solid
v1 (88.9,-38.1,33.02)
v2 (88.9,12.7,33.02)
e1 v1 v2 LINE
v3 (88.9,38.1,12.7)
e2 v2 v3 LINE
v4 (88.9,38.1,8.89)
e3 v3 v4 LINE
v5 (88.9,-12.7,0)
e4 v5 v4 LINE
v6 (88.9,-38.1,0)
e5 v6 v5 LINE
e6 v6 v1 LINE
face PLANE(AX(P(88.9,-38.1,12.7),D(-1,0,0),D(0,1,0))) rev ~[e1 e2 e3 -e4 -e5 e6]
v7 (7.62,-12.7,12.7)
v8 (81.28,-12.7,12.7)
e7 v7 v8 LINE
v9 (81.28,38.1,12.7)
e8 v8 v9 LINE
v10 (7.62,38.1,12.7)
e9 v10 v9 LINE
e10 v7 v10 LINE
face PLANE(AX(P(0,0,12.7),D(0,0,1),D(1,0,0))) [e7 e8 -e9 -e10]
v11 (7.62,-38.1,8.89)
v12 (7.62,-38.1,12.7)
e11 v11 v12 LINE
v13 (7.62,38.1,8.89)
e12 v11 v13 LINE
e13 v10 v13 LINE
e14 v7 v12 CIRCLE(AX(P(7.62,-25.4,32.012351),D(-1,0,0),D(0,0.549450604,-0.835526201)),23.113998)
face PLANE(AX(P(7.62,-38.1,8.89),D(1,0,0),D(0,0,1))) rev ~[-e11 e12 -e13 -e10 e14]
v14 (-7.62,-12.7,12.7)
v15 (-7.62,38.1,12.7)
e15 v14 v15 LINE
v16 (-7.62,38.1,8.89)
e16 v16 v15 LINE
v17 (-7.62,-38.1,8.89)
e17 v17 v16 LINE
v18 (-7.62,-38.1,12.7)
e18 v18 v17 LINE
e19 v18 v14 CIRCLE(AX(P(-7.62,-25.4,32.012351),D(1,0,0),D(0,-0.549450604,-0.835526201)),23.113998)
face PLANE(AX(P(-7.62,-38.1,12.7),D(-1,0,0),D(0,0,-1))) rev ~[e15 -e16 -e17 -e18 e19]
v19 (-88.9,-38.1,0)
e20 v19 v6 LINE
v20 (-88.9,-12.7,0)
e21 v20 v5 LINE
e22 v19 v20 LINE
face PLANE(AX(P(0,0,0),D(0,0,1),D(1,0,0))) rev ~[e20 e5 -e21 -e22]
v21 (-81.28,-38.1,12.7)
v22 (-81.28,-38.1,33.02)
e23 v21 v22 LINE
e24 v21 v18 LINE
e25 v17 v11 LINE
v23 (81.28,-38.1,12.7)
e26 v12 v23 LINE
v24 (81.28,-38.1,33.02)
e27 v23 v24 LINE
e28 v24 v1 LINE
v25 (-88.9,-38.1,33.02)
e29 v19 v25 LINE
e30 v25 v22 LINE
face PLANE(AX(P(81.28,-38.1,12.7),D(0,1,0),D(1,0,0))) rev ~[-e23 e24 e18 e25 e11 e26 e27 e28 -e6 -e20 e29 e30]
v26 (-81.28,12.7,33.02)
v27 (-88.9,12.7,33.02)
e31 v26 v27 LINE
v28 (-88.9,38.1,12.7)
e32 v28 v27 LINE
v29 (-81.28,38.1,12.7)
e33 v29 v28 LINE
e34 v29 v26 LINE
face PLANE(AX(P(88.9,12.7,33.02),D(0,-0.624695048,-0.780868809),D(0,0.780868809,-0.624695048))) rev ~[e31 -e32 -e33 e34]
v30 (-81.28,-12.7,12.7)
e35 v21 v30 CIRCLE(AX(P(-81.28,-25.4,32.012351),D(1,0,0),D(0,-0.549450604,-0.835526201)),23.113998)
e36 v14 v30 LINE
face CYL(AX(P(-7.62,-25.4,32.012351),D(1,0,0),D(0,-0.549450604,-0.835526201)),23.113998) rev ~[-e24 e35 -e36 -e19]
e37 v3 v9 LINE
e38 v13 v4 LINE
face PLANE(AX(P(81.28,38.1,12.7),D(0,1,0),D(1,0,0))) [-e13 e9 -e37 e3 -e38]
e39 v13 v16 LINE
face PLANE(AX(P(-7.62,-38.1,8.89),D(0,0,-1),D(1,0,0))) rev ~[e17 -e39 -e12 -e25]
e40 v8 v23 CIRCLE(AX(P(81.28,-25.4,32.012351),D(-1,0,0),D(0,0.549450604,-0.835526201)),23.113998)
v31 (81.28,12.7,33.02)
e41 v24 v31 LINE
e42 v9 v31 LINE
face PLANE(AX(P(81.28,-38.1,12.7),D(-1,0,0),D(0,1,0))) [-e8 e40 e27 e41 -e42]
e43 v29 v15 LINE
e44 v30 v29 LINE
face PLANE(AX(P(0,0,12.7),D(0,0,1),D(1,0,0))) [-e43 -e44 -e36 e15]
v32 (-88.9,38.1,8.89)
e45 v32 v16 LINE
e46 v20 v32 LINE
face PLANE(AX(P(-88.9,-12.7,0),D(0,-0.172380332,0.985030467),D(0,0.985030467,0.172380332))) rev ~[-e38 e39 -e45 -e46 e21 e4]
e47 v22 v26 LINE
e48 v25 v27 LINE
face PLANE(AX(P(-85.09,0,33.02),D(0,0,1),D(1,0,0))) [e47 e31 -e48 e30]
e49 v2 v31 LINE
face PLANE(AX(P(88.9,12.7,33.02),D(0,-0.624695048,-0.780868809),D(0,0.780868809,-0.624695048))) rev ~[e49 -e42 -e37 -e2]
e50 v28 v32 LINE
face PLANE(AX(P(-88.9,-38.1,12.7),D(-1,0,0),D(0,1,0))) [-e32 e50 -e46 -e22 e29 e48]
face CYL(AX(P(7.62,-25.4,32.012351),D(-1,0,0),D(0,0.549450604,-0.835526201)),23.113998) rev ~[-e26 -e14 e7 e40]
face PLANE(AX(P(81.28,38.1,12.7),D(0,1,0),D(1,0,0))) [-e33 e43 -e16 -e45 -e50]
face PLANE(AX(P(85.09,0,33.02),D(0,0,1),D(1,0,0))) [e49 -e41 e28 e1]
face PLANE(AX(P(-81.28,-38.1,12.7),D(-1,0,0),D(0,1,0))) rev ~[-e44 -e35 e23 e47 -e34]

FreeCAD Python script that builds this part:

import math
import FreeCAD as App
import Part
import Sketcher

V = App.Vector
Q = App.Units.Quantity

doc = App.newDocument("Part")
body = doc.addObject("PartDesign::Body", "Body")

# Sketch on XY plane
sketch1 = body.newObject("Sketcher::SketchObject", "Sketch")
sketch1.AttachmentSupport = (doc.getObject("XY_Plane"), [""])
sketch1.MapMode = "FlatFace"
sketch1.addGeometry(Part.LineSegment(V(-89, 38, 0), V(-89, -38, 0)), False)
sketch1.addGeometry(Part.LineSegment(V(-89, -38, 0), V(89, -38, 0)), False)
sketch1.addGeometry(Part.LineSegment(V(89, -38, 0), V(89, 38, 0)), False)
sketch1.addGeometry(Part.LineSegment(V(89, 38, 0), V(-89, 38, 0)), False)
sketch1.addConstraint(Sketcher.Constraint("Coincident", 0, 2, 1, 1))
sketch1.addConstraint(Sketcher.Constraint("Coincident", 1, 2, 2, 1))
sketch1.addConstraint(Sketcher.Constraint("Coincident", 2, 2, 3, 1))
sketch1.addConstraint(Sketcher.Constraint("Coincident", 3, 2, 0, 1))
sketch1.addConstraint(Sketcher.Constraint("Vertical", 0))
sketch1.addConstraint(Sketcher.Constraint("Horizontal", 1))
sketch1.addConstraint(Sketcher.Constraint("Vertical", 2))
sketch1.addConstraint(Sketcher.Constraint("Horizontal", 3))
sketch1.addConstraint(Sketcher.Constraint("Symmetric", 0, 2, 2, 2, -1, 1))
sketch1.addConstraint(Sketcher.Constraint("DistanceX", 1, 1, 1, 2, Q("7 in")))
sketch1.addConstraint(Sketcher.Constraint("DistanceY", 0, 2, 0, 1, Q("3 in")))
pad1 = body.newObject("PartDesign::Pad", "Pad")
pad1.Profile = sketch1
pad1.Length = Q("0.5 in")

# Sketch on XZ plane
sketch2 = body.newObject("Sketcher::SketchObject", "Sketch001")
sketch2.AttachmentSupport = (doc.getObject("XZ_Plane"), [""])
sketch2.MapMode = "FlatFace"
sketch2.AttachmentOffset = App.Placement(V(0, 0, 1.5 * 25.4), App.Rotation())
sketch2.addGeometry(Part.LineSegment(V(-7.6, 8.9, 0), V(7.6, 8.9, 0)), False)
sketch2.addGeometry(Part.LineSegment(V(7.6, 8.9, 0), V(7.6, 12.7, 0)), False)
sketch2.addGeometry(Part.LineSegment(V(7.6, 12.7, 0), V(-7.6, 12.7, 0)), False)
sketch2.addGeometry(Part.LineSegment(V(-7.6, 12.7, 0), V(-7.6, 8.9, 0)), False)
sketch2.addConstraint(Sketcher.Constraint("Coincident", 0, 2, 1, 1))
sketch2.addConstraint(Sketcher.Constraint("Coincident", 1, 2, 2, 1))
sketch2.addConstraint(Sketcher.Constraint("Coincident", 2, 2, 3, 1))
sketch2.addConstraint(Sketcher.Constraint("Coincident", 3, 2, 0, 1))
sketch2.addConstraint(Sketcher.Constraint("Horizontal", 0))
sketch2.addConstraint(Sketcher.Constraint("Vertical", 1))
sketch2.addConstraint(Sketcher.Constraint("Horizontal", 2))
sketch2.addConstraint(Sketcher.Constraint("Vertical", 3))
sketch2.addConstraint(Sketcher.Constraint("DistanceX", 0, 1, 0, 2, Q("0.6 in")))
sketch2.addConstraint(Sketcher.Constraint("DistanceY", 1, 1, 1, 2, Q("0.15 in")))
sketch2.addConstraint(Sketcher.Constraint("DistanceX", -1, 1, 0, 2, Q("0.3 in")))
sketch2.addConstraint(Sketcher.Constraint("DistanceY", -1, 1, 1, 2, Q("0.5 in")))
pocket1 = body.newObject("PartDesign::Pocket", "Pocket")
pocket1.Profile = sketch2
pocket1.Length = Q("7.78 in")

# Sketch on XY plane
sketch3 = body.newObject("Sketcher::SketchObject", "Sketch002")
sketch3.AttachmentSupport = (doc.getObject("XY_Plane"), [""])
sketch3.MapMode = "FlatFace"
sketch3.AttachmentOffset = App.Placement(V(0, 0, 0.5 * 25.4), App.Rotation())
sketch3.addGeometry(Part.LineSegment(V(-89, 38, 0), V(-89, -38, 0)), False)
sketch3.addGeometry(Part.LineSegment(V(-89, -38, 0), V(-81, -38, 0)), False)
sketch3.addGeometry(Part.LineSegment(V(-81, -38, 0), V(-81, 38, 0)), False)
sketch3.addGeometry(Part.LineSegment(V(-81, 38, 0), V(-89, 38, 0)), False)
sketch3.addConstraint(Sketcher.Constraint("Coincident", 0, 2, 1, 1))
sketch3.addConstraint(Sketcher.Constraint("Coincident", 1, 2, 2, 1))
sketch3.addConstraint(Sketcher.Constraint("Coincident", 2, 2, 3, 1))
sketch3.addConstraint(Sketcher.Constraint("Coincident", 3, 2, 0, 1))
sketch3.addConstraint(Sketcher.Constraint("Vertical", 0))
sketch3.addConstraint(Sketcher.Constraint("Horizontal", 1))
sketch3.addConstraint(Sketcher.Constraint("Vertical", 2))
sketch3.addConstraint(Sketcher.Constraint("Horizontal", 3))
sketch3.addConstraint(Sketcher.Constraint("DistanceY", 0, 2, 0, 1, Q("3 in")))
sketch3.addConstraint(Sketcher.Constraint("DistanceX", 1, 1, 1, 2, Q("0.3 in")))
sketch3.addConstraint(Sketcher.Constraint("DistanceX", 0, 2, -1, 1, Q("3.5 in")))
sketch3.addConstraint(Sketcher.Constraint("DistanceY", 0, 2, -1, 1, Q("1.5 in")))
pad2 = body.newObject("PartDesign::Pad", "Pad001")
pad2.Profile = sketch3
pad2.Length = Q("0.8 in")

# Sketch on XY plane
sketch4 = body.newObject("Sketcher::SketchObject", "Sketch003")
sketch4.AttachmentSupport = (doc.getObject("XY_Plane"), [""])
sketch4.MapMode = "FlatFace"
sketch4.AttachmentOffset = App.Placement(V(0, 0, 0.5 * 25.4), App.Rotation())
sketch4.addGeometry(Part.LineSegment(V(81, 38, 0), V(81, -38, 0)), False)
sketch4.addGeometry(Part.LineSegment(V(81, -38, 0), V(89, -38, 0)), False)
sketch4.addGeometry(Part.LineSegment(V(89, -38, 0), V(89, 38, 0)), False)
sketch4.addGeometry(Part.LineSegment(V(89, 38, 0), V(81, 38, 0)), False)
sketch4.addConstraint(Sketcher.Constraint("Coincident", 0, 2, 1, 1))
sketch4.addConstraint(Sketcher.Constraint("Coincident", 1, 2, 2, 1))
sketch4.addConstraint(Sketcher.Constraint("Coincident", 2, 2, 3, 1))
sketch4.addConstraint(Sketcher.Constraint("Coincident", 3, 2, 0, 1))
sketch4.addConstraint(Sketcher.Constraint("Vertical", 0))
sketch4.addConstraint(Sketcher.Constraint("Horizontal", 1))
sketch4.addConstraint(Sketcher.Constraint("Vertical", 2))
sketch4.addConstraint(Sketcher.Constraint("Horizontal", 3))
sketch4.addConstraint(Sketcher.Constraint("DistanceY", 0, 2, 0, 1, Q("3 in")))
sketch4.addConstraint(Sketcher.Constraint("DistanceX", 1, 1, 1, 2, Q("0.3 in")))
sketch4.addConstraint(Sketcher.Constraint("DistanceX", -1, 1, 0, 2, Q("3.2 in")))
sketch4.addConstraint(Sketcher.Constraint("DistanceY", 0, 2, -1, 1, Q("1.5 in")))
pad3 = body.newObject("PartDesign::Pad", "Pad002")
pad3.Profile = sketch4
pad3.Length = Q("0.8 in")

# Sketch on YZ plane
sketch5 = body.newObject("Sketcher::SketchObject", "Sketch004")
sketch5.AttachmentSupport = (doc.getObject("YZ_Plane"), [""])
sketch5.MapMode = "FlatFace"
sketch5.AttachmentOffset = App.Placement(V(0, 0, -0.3 * 25.4), App.Rotation())
sketch5.addGeometry(Part.LineSegment(V(-13, 13, 0), V(-38, 13, 0)), False)
sketch5.addGeometry(Part.ArcOfCircle(Part.Circle(V(-25, 32, 0), V(0, 0, 1), 23), math.radians(-123), math.radians(-57)), False)
sketch5.addConstraint(Sketcher.Constraint("Coincident", 0, 1, 1, 2))
sketch5.addConstraint(Sketcher.Constraint("Coincident", 1, 1, 0, 2))
sketch5.addConstraint(Sketcher.Constraint("Horizontal", 0))
sketch5.addConstraint(Sketcher.Constraint("DistanceX", 0, 2, 0, 1, Q("1 in")))
sketch5.addConstraint(Sketcher.Constraint("Radius", 1, Q("0.9099999 in")))
sketch5.addConstraint(Sketcher.Constraint("DistanceX", 1, 3, -1, 1, Q("1 in")))
sketch5.addConstraint(Sketcher.Constraint("DistanceY", -1, 1, 0, 1, Q("0.5 in")))
pocket2 = body.newObject("PartDesign::Pocket", "Pocket001")
pocket2.Profile = sketch5
pocket2.Length = Q("2.9 in")

# Sketch on YZ plane
sketch6 = body.newObject("Sketcher::SketchObject", "Sketch005")
sketch6.AttachmentSupport = (doc.getObject("YZ_Plane"), [""])
sketch6.MapMode = "FlatFace"
sketch6.AttachmentOffset = App.Placement(V(0, 0, 0.3 * 25.4), App.Rotation())
sketch6.addGeometry(Part.ArcOfCircle(Part.Circle(V(-25, 32, 0), V(0, 0, 1), 23), math.radians(-123), math.radians(-57)), False)
sketch6.addGeometry(Part.LineSegment(V(-38, 13, 0), V(-13, 13, 0)), False)
sketch6.addConstraint(Sketcher.Constraint("Coincident", 0, 1, 1, 1))
sketch6.addConstraint(Sketcher.Constraint("Coincident", 1, 2, 0, 2))
sketch6.addConstraint(Sketcher.Constraint("Horizontal", 1))
sketch6.addConstraint(Sketcher.Constraint("DistanceX", 1, 1, 1, 2, Q("1 in")))
sketch6.addConstraint(Sketcher.Constraint("Radius", 0, Q("0.9099999 in")))
sketch6.addConstraint(Sketcher.Constraint("DistanceX", 0, 3, -1, 1, Q("1 in")))
sketch6.addConstraint(Sketcher.Constraint("DistanceY", -1, 1, 0, 1, Q("0.5 in")))
pocket3 = body.newObject("PartDesign::Pocket", "Pocket002")
pocket3.Profile = sketch6
pocket3.Length = Q("2.9 in")
pocket3.Reversed = True

# Sketch on YZ plane
sketch7 = body.newObject("Sketcher::SketchObject", "Sketch006")
sketch7.AttachmentSupport = (doc.getObject("YZ_Plane"), [""])
sketch7.MapMode = "FlatFace"
sketch7.AttachmentOffset = App.Placement(V(0, 0, -3.5 * 25.4), App.Rotation())
sketch7.addGeometry(Part.LineSegment(V(38, 0, 0), V(-13, 0, 0)), False)
sketch7.addGeometry(Part.LineSegment(V(-13, 0, 0), V(38, 9, 0)), False)
sketch7.addGeometry(Part.LineSegment(V(38, 9, 0), V(38, 0, 0)), False)
sketch7.addConstraint(Sketcher.Constraint("Coincident", 0, 2, 1, 1))
sketch7.addConstraint(Sketcher.Constraint("Coincident", 1, 2, 2, 1))
sketch7.addConstraint(Sketcher.Constraint("Coincident", 2, 2, 0, 1))
sketch7.addConstraint(Sketcher.Constraint("Horizontal", 0))
sketch7.addConstraint(Sketcher.Constraint("Vertical", 2))
sketch7.addConstraint(Sketcher.Constraint("PointOnObject", 0, 2, -1))
sketch7.addConstraint(Sketcher.Constraint("DistanceX", 0, 2, 0, 1, Q("2 in")))
sketch7.addConstraint(Sketcher.Constraint("DistanceY", 2, 2, 2, 1, Q("0.35 in")))
sketch7.addConstraint(Sketcher.Constraint("DistanceX", 0, 2, -1, 1, Q("0.5 in")))
pocket4 = body.newObject("PartDesign::Pocket", "Pocket003")
pocket4.Profile = sketch7
pocket4.Length = Q("9 in")
pocket4.Reversed = True

# Sketch on YZ plane
sketch8 = body.newObject("Sketcher::SketchObject", "Sketch007")
sketch8.AttachmentSupport = (doc.getObject("YZ_Plane"), [""])
sketch8.MapMode = "FlatFace"
sketch8.AttachmentOffset = App.Placement(V(0, 0, 3.5 * 25.4), App.Rotation())
sketch8.addGeometry(Part.LineSegment(V(38, 33, 0), V(13, 33, 0)), False)
sketch8.addGeometry(Part.LineSegment(V(13, 33, 0), V(38, 13, 0)), False)
sketch8.addGeometry(Part.LineSegment(V(38, 13, 0), V(38, 33, 0)), False)
sketch8.addConstraint(Sketcher.Constraint("Coincident", 0, 2, 1, 1))
sketch8.addConstraint(Sketcher.Constraint("Coincident", 1, 2, 2, 1))
sketch8.addConstraint(Sketcher.Constraint("Coincident", 2, 2, 0, 1))
sketch8.addConstraint(Sketcher.Constraint("Horizontal", 0))
sketch8.addConstraint(Sketcher.Constraint("Vertical", 2))
sketch8.addConstraint(Sketcher.Constraint("DistanceX", 0, 2, 0, 1, Q("1 in")))
sketch8.addConstraint(Sketcher.Constraint("DistanceY", 2, 1, 2, 2, Q("0.8 in")))
sketch8.addConstraint(Sketcher.Constraint("DistanceX", -1, 1, 0, 2, Q("0.5 in")))
sketch8.addConstraint(Sketcher.Constraint("DistanceY", -1, 1, 0, 2, Q("1.3 in")))
pocket5 = body.newObject("PartDesign::Pocket", "Pocket004")
pocket5.Profile = sketch8
pocket5.Length = Q("9 in")

doc.recompute()
